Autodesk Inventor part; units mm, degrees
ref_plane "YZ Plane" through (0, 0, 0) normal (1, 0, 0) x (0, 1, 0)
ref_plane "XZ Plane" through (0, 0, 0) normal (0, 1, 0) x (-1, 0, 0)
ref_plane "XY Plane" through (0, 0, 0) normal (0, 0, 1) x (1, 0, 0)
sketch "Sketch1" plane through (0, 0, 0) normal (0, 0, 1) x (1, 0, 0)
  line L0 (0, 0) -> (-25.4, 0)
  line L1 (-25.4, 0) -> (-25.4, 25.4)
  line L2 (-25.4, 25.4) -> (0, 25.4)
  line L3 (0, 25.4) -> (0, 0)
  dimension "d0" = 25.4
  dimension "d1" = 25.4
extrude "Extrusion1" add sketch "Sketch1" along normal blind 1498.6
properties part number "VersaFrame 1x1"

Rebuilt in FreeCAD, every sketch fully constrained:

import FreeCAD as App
import Part
import Sketcher
Q = App.Units.Quantity


def add_polygon(sketch, points):
    """Adds a closed chain of lines whose ends are joined by coincident constraints."""
    first, n = sketch.GeometryCount, len(points)
    for a, b in zip(points, points[1:] + points[:1]):
        sketch.addGeometry(Part.LineSegment(App.Vector(*a, 0), App.Vector(*b, 0)), False)
    for i in range(n):
        sketch.addConstraint(Sketcher.Constraint("Coincident", first + i, 2, first + (i + 1) % n, 1))

doc = App.newDocument("Part")
body = doc.addObject("PartDesign::Body", "Body")

sketch1 = doc.addObject("Sketcher::SketchObject", "Sketch")
body.addObject(sketch1)
sketch1.AttachmentSupport = (doc.XY_Plane, [""])
sketch1.MapMode = "FlatFace"
add_polygon(sketch1, [(-25, 0), (0, 0), (0, 25), (-25, 25)])
sketch1.addConstraint(Sketcher.Constraint("Horizontal", 0))
sketch1.addConstraint(Sketcher.Constraint("Vertical", 1))
sketch1.addConstraint(Sketcher.Constraint("Horizontal", 2))
sketch1.addConstraint(Sketcher.Constraint("Vertical", 3))
sketch1.addConstraint(Sketcher.Constraint("Coincident", 0, 2, -1, 1))
sketch1.addConstraint(Sketcher.Constraint("Equal", 2, 1))
sketch1.addConstraint(Sketcher.Constraint("DistanceX", 0, 1, 0, 2, Q("1 in")))
pad1 = doc.addObject("PartDesign::Pad", "Pad")
body.addObject(pad1)
pad1.Profile = sketch1
pad1.Length = Q("59 in")

doc.recompute()
